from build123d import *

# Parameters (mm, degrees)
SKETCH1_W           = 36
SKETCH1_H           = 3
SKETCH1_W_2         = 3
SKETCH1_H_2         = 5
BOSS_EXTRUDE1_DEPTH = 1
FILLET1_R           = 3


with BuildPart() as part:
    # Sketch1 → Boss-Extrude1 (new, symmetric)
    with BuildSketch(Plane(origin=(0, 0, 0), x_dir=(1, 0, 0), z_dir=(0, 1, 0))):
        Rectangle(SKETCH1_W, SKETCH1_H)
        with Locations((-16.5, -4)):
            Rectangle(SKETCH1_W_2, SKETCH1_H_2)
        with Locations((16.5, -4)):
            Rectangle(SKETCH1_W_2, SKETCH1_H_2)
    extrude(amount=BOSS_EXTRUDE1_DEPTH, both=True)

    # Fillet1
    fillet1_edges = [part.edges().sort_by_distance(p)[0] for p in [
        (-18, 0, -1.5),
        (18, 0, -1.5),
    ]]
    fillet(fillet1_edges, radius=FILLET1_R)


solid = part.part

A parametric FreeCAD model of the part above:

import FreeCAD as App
import Part
import Sketcher
from FreeCAD import Vector
Q = App.Units.Quantity


def edges_at(feature, points):
    """Names of the edges that pass closest to the given points."""
    edges = feature.Shape.Edges
    near = lambda p: min(range(len(edges)), key=lambda i: edges[i].distToShape(Part.Vertex(*p))[0])
    return sorted({f"Edge{near(p) + 1}" for p in points})

doc = App.newDocument("Part")
params = doc.addObject("Spreadsheet::Sheet", "Params")
for row, (alias, value) in enumerate([
    ("sketch1_width", "3 mm"),
    ("sketch1_width2", "30 mm"),
    ("sketch1_height", "8 mm"),
    ("sketch1_height2", "5 mm"),
    ("pad1_length", "2 mm"),
    ("fillet_radius", "3 mm"),
], start=1):
    params.set(f"A{row}", alias)
    params.set(f"B{row}", "=" + value)
    params.setAlias(f"B{row}", alias)

body = doc.addObject("PartDesign::Body", "Body")

# Sketch on XZ plane
sketch1 = body.newObject("Sketcher::SketchObject", "Sketch")
sketch1.AttachmentSupport = (doc.getObject("XZ_Plane"), [""])
sketch1.MapMode = "FlatFace"
sketch1.addGeometry(Part.LineSegment(Vector(-18, -1.5, 0), Vector(-18, 6.5, 0)), False)
sketch1.addGeometry(Part.LineSegment(Vector(-18, 6.5, 0), Vector(-15, 6.5, 0)), False)
sketch1.addGeometry(Part.LineSegment(Vector(-15, 6.5, 0), Vector(-15, 1.5, 0)), False)
sketch1.addGeometry(Part.LineSegment(Vector(-15, 1.5, 0), Vector(15, 1.5, 0)), False)
sketch1.addGeometry(Part.LineSegment(Vector(15, 1.5, 0), Vector(15, 6.5, 0)), False)
sketch1.addGeometry(Part.LineSegment(Vector(15, 6.5, 0), Vector(18, 6.5, 0)), False)
sketch1.addGeometry(Part.LineSegment(Vector(18, 6.5, 0), Vector(18, -1.5, 0)), False)
sketch1.addGeometry(Part.LineSegment(Vector(18, -1.5, 0), Vector(-18, -1.5, 0)), False)
sketch1.addConstraint(Sketcher.Constraint("Coincident", 0, 2, 1, 1))
sketch1.addConstraint(Sketcher.Constraint("Coincident", 1, 2, 2, 1))
sketch1.addConstraint(Sketcher.Constraint("Coincident", 2, 2, 3, 1))
sketch1.addConstraint(Sketcher.Constraint("Coincident", 3, 2, 4, 1))
sketch1.addConstraint(Sketcher.Constraint("Coincident", 4, 2, 5, 1))
sketch1.addConstraint(Sketcher.Constraint("Coincident", 5, 2, 6, 1))
sketch1.addConstraint(Sketcher.Constraint("Coincident", 6, 2, 7, 1))
sketch1.addConstraint(Sketcher.Constraint("Coincident", 7, 2, 0, 1))
sketch1.addConstraint(Sketcher.Constraint("Vertical", 0))
sketch1.addConstraint(Sketcher.Constraint("Horizontal", 1))
sketch1.addConstraint(Sketcher.Constraint("Vertical", 2))
sketch1.addConstraint(Sketcher.Constraint("Horizontal", 3))
sketch1.addConstraint(Sketcher.Constraint("Vertical", 4))
sketch1.addConstraint(Sketcher.Constraint("Horizontal", 5))
sketch1.addConstraint(Sketcher.Constraint("Vertical", 6))
sketch1.addConstraint(Sketcher.Constraint("Horizontal", 7))
sketch1.addConstraint(Sketcher.Constraint("Symmetric", 1, 2, 4, 2, -2))
sketch1.addConstraint(Sketcher.Constraint("Equal", 1, 5))
sketch1.addConstraint(Sketcher.Constraint("DistanceX", 1, 1, 1, 2, Q("3 mm")))
sketch1.addConstraint(Sketcher.Constraint("DistanceX", 3, 1, 3, 2, Q("30 mm")))
sketch1.addConstraint(Sketcher.Constraint("DistanceY", 0, 1, 0, 2, Q("8 mm")))
sketch1.addConstraint(Sketcher.Constraint("DistanceY", 2, 2, 2, 1, Q("5 mm")))
sketch1.addConstraint(Sketcher.Constraint("DistanceY", -1, 1, 0, 2, Q("6.5 mm")))
sketch1.setExpression("Constraints[18]", "Params.sketch1_width")
sketch1.setExpression("Constraints[19]", "Params.sketch1_width2")
sketch1.setExpression("Constraints[20]", "Params.sketch1_height")
sketch1.setExpression("Constraints[21]", "Params.sketch1_height2")
pad1 = body.newObject("PartDesign::Pad", "Pad")
pad1.Profile = sketch1
pad1.setExpression("Length", "Params.pad1_length")
pad1.Midplane = True
doc.recompute()

fillet = body.newObject("PartDesign::Fillet", "Fillet")
fillet.Base = (pad1, edges_at(pad1, [(-18, 0, -1.5), (18, 0, -1.5)]))
fillet.setExpression("Radius", "Params.fillet_radius")

doc.recompute()
